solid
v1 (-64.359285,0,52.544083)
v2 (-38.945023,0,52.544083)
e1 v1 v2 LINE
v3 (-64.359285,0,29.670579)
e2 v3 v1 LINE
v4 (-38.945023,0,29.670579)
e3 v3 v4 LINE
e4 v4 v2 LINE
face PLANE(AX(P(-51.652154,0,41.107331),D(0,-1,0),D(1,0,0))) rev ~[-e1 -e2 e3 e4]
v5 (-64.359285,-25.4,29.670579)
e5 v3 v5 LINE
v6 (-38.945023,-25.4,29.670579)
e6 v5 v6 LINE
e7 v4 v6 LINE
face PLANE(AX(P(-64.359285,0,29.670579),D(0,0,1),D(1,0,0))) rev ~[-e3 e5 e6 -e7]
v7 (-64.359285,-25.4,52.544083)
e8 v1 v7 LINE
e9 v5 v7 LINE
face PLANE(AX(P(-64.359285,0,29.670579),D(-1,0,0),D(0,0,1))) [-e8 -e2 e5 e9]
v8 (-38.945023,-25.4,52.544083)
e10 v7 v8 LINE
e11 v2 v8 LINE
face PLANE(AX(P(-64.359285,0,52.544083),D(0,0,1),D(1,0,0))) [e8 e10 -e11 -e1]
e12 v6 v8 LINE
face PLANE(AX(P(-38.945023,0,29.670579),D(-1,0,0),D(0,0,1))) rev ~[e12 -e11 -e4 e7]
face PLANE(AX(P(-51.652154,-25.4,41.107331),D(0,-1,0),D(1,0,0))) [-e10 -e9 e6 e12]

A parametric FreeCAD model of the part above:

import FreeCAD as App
import Part
import Sketcher
Q = App.Units.Quantity

doc = App.newDocument("Part")
body = doc.addObject("PartDesign::Body", "Body")

# Sketch on XZ plane
sketch1 = body.newObject("Sketcher::SketchObject", "Sketch")
sketch1.AttachmentSupport = (doc.getObject("XZ_Plane"), [""])
sketch1.MapMode = "FlatFace"
sketch1.addGeometry([
    Part.LineSegment(App.Vector(-64, 53, 0), App.Vector(-64, 30, 0)),
    Part.LineSegment(App.Vector(-64, 30, 0), App.Vector(-39, 30, 0)),
    Part.LineSegment(App.Vector(-39, 30, 0), App.Vector(-39, 53, 0)),
    Part.LineSegment(App.Vector(-39, 53, 0), App.Vector(-64, 53, 0)),
], False)
sketch1.addConstraint([
    Sketcher.Constraint("Coincident", 0, 2, 1, 1),
    Sketcher.Constraint("Coincident", 1, 2, 2, 1),
    Sketcher.Constraint("Coincident", 2, 2, 3, 1),
    Sketcher.Constraint("Coincident", 3, 2, 0, 1),
    Sketcher.Constraint("Vertical", 0),
    Sketcher.Constraint("Horizontal", 1),
    Sketcher.Constraint("Vertical", 2),
    Sketcher.Constraint("Horizontal", 3),
    Sketcher.Constraint("DistanceX", 1, 1, 1, 2, 25.414262),
    Sketcher.Constraint("DistanceY", 0, 2, 0, 1, 22.873504),
    Sketcher.Constraint("DistanceY", -1, 1, 0, 2, 29.670579),
    Sketcher.Constraint("DistanceX", 0, 2, -1, 1, 64.359285),
])
pad1 = body.newObject("PartDesign::Pad", "Pad")
pad1.Profile = sketch1
pad1.Length = Q("1 in")

doc.recompute()
